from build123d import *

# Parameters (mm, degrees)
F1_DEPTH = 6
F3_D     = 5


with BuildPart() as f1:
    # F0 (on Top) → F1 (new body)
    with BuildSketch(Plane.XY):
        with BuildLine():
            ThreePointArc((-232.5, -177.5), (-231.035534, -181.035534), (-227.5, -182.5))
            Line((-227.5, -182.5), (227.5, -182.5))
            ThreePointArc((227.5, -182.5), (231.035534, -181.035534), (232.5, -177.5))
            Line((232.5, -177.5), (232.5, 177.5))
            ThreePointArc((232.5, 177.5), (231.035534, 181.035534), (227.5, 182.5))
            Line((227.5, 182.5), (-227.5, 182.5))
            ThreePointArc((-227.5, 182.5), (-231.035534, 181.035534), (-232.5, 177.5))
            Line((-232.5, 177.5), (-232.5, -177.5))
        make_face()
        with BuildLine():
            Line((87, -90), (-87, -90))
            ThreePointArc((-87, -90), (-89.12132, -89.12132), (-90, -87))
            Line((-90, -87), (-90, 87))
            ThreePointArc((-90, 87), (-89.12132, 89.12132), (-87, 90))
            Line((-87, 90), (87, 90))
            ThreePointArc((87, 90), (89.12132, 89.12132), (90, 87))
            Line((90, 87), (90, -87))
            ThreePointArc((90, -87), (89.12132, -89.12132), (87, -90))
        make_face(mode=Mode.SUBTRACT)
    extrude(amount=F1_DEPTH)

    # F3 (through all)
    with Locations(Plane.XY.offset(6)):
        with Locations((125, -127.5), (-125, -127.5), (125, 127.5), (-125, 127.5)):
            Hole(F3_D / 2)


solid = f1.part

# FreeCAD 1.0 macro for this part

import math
import FreeCAD as App
import Part
import Sketcher
from FreeCAD import Vector

doc = App.newDocument("Part")
body = doc.addObject("PartDesign::Body", "Body")

sketch1 = body.newObject("Sketcher::SketchObject", "Sketch")
sketch1.AttachmentSupport = (doc.getObject("XY_Plane"), [""])
sketch1.MapMode = "FlatFace"
sketch1.addGeometry(Part.ArcOfCircle(Part.Circle(Vector(-227.5, -177.5, 0), Vector(0, 0, 1), 5), math.radians(180), math.radians(270)), False)
sketch1.addGeometry(Part.LineSegment(Vector(-227.5, -182.5, 0), Vector(227.5, -182.5, 0)), False)
sketch1.addGeometry(Part.ArcOfCircle(Part.Circle(Vector(227.5, -177.5, 0), Vector(0, 0, 1), 5), math.radians(-90), math.radians(0)), False)
sketch1.addGeometry(Part.LineSegment(Vector(232.5, -177.5, 0), Vector(232.5, 177.5, 0)), False)
sketch1.addGeometry(Part.ArcOfCircle(Part.Circle(Vector(227.5, 177.5, 0), Vector(0, 0, 1), 5), math.radians(0), math.radians(90)), False)
sketch1.addGeometry(Part.LineSegment(Vector(227.5, 182.5, 0), Vector(-227.5, 182.5, 0)), False)
sketch1.addGeometry(Part.ArcOfCircle(Part.Circle(Vector(-227.5, 177.5, 0), Vector(0, 0, 1), 5), math.radians(90), math.radians(180)), False)
sketch1.addGeometry(Part.LineSegment(Vector(-232.5, 177.5, 0), Vector(-232.5, -177.5, 0)), False)
sketch1.addGeometry(Part.ArcOfCircle(Part.Circle(Vector(87, -87, 0), Vector(0, 0, 1), 3), math.radians(-90), math.radians(0)), False)
sketch1.addGeometry(Part.LineSegment(Vector(87, -90, 0), Vector(-87, -90, 0)), False)
sketch1.addGeometry(Part.ArcOfCircle(Part.Circle(Vector(-87, -87, 0), Vector(0, 0, 1), 3), math.radians(-180), math.radians(-90)), False)
sketch1.addGeometry(Part.LineSegment(Vector(-90, -87, 0), Vector(-90, 87, 0)), False)
sketch1.addGeometry(Part.ArcOfCircle(Part.Circle(Vector(-87, 87, 0), Vector(0, 0, 1), 3), math.radians(90), math.radians(180)), False)
sketch1.addGeometry(Part.LineSegment(Vector(-87, 90, 0), Vector(87, 90, 0)), False)
sketch1.addGeometry(Part.ArcOfCircle(Part.Circle(Vector(87, 87, 0), Vector(0, 0, 1), 3), math.radians(0), math.radians(90)), False)
sketch1.addGeometry(Part.LineSegment(Vector(90, 87, 0), Vector(90, -87, 0)), False)
sketch1.addConstraint(Sketcher.Constraint("Tangent", 0, 2, 1, 1))
sketch1.addConstraint(Sketcher.Constraint("Tangent", 1, 2, 2, 1))
sketch1.addConstraint(Sketcher.Constraint("Tangent", 2, 2, 3, 1))
sketch1.addConstraint(Sketcher.Constraint("Tangent", 3, 2, 4, 1))
sketch1.addConstraint(Sketcher.Constraint("Tangent", 4, 2, 5, 1))
sketch1.addConstraint(Sketcher.Constraint("Tangent", 5, 2, 6, 1))
sketch1.addConstraint(Sketcher.Constraint("Tangent", 6, 2, 7, 1))
sketch1.addConstraint(Sketcher.Constraint("Tangent", 7, 2, 0, 1))
sketch1.addConstraint(Sketcher.Constraint("Tangent", 8, 1, 9, 1))
sketch1.addConstraint(Sketcher.Constraint("Tangent", 9, 2, 10, 2))
sketch1.addConstraint(Sketcher.Constraint("Tangent", 10, 1, 11, 1))
sketch1.addConstraint(Sketcher.Constraint("Tangent", 11, 2, 12, 2))
sketch1.addConstraint(Sketcher.Constraint("Tangent", 12, 1, 13, 1))
sketch1.addConstraint(Sketcher.Constraint("Tangent", 13, 2, 14, 2))
sketch1.addConstraint(Sketcher.Constraint("Tangent", 14, 1, 15, 1))
sketch1.addConstraint(Sketcher.Constraint("Tangent", 15, 2, 8, 2))
sketch1.addConstraint(Sketcher.Constraint("Horizontal", 1))
sketch1.addConstraint(Sketcher.Constraint("Vertical", 3))
sketch1.addConstraint(Sketcher.Constraint("Horizontal", 5))
sketch1.addConstraint(Sketcher.Constraint("Vertical", 7))
sketch1.addConstraint(Sketcher.Constraint("Horizontal", 9))
sketch1.addConstraint(Sketcher.Constraint("Vertical", 11))
sketch1.addConstraint(Sketcher.Constraint("Horizontal", 13))
sketch1.addConstraint(Sketcher.Constraint("Vertical", 15))
sketch1.addConstraint(Sketcher.Constraint("Equal", 0, 2))
sketch1.addConstraint(Sketcher.Constraint("Equal", 2, 4))
sketch1.addConstraint(Sketcher.Constraint("Equal", 4, 6))
sketch1.addConstraint(Sketcher.Constraint("Equal", 8, 10))
sketch1.addConstraint(Sketcher.Constraint("Equal", 10, 12))
sketch1.addConstraint(Sketcher.Constraint("Equal", 12, 14))
sketch1.addConstraint(Sketcher.Constraint("Symmetric", 0, 3, 4, 3, -1, 1))
sketch1.addConstraint(Sketcher.Constraint("Symmetric", 8, 3, 12, 3, -1, 1))
sketch1.addConstraint(Sketcher.Constraint("Equal", 13, 11))
sketch1.addConstraint(Sketcher.Constraint("Radius", 0, 5.0))
sketch1.addConstraint(Sketcher.Constraint("Radius", 8, 3.000001))
sketch1.addConstraint(Sketcher.Constraint("DistanceX", 1, 1, 1, 2, 455.0))
sketch1.addConstraint(Sketcher.Constraint("DistanceX", 9, 2, 9, 1, 174.0))
sketch1.addConstraint(Sketcher.Constraint("DistanceY", 3, 1, 3, 2, 355.0))
pad1 = body.newObject("PartDesign::Pad", "Pad")
pad1.Profile = sketch1
pad1.Length = 6

sketch2 = body.newObject("Sketcher::SketchObject", "Sketch001")
sketch2.AttachmentSupport = (doc.getObject("XY_Plane"), [""])
sketch2.MapMode = "FlatFace"
sketch2.AttachmentOffset = App.Placement(Vector(0, 0, 6), App.Rotation())
sketch2.addGeometry(Part.Circle(Vector(125, -127.5, 0), Vector(0, 0, 1), 2.5), False)
sketch2.addGeometry(Part.Circle(Vector(-125, -127.5, 0), Vector(0, 0, 1), 2.5), False)
sketch2.addGeometry(Part.Circle(Vector(125, 127.5, 0), Vector(0, 0, 1), 2.5), False)
sketch2.addGeometry(Part.Circle(Vector(-125, 127.5, 0), Vector(0, 0, 1), 2.5), False)
sketch2.addConstraint(Sketcher.Constraint("Equal", 0, 1))
sketch2.addConstraint(Sketcher.Constraint("Equal", 1, 2))
sketch2.addConstraint(Sketcher.Constraint("Equal", 2, 3))
sketch2.addConstraint(Sketcher.Constraint("Symmetric", 1, 3, 2, 3, -1, 1))
sketch2.addConstraint(Sketcher.Constraint("Symmetric", 0, 3, 3, 3, -1, 1))
sketch2.addConstraint(Sketcher.Constraint("Symmetric", 0, 3, 1, 3, -2))
sketch2.addConstraint(Sketcher.Constraint("Diameter", 0, 5.0))
sketch2.addConstraint(Sketcher.Constraint("DistanceX", -1, 1, 0, 3, 125.0))
sketch2.addConstraint(Sketcher.Constraint("DistanceY", 0, 3, 2, 3, 255.0))
doc.recompute()
hole = body.newObject("PartDesign::Hole", "Hole")
hole.Profile = sketch2
hole.ThreadType = "None"
hole.Diameter = 5
hole.DepthType = "ThroughAll"

doc.recompute()
